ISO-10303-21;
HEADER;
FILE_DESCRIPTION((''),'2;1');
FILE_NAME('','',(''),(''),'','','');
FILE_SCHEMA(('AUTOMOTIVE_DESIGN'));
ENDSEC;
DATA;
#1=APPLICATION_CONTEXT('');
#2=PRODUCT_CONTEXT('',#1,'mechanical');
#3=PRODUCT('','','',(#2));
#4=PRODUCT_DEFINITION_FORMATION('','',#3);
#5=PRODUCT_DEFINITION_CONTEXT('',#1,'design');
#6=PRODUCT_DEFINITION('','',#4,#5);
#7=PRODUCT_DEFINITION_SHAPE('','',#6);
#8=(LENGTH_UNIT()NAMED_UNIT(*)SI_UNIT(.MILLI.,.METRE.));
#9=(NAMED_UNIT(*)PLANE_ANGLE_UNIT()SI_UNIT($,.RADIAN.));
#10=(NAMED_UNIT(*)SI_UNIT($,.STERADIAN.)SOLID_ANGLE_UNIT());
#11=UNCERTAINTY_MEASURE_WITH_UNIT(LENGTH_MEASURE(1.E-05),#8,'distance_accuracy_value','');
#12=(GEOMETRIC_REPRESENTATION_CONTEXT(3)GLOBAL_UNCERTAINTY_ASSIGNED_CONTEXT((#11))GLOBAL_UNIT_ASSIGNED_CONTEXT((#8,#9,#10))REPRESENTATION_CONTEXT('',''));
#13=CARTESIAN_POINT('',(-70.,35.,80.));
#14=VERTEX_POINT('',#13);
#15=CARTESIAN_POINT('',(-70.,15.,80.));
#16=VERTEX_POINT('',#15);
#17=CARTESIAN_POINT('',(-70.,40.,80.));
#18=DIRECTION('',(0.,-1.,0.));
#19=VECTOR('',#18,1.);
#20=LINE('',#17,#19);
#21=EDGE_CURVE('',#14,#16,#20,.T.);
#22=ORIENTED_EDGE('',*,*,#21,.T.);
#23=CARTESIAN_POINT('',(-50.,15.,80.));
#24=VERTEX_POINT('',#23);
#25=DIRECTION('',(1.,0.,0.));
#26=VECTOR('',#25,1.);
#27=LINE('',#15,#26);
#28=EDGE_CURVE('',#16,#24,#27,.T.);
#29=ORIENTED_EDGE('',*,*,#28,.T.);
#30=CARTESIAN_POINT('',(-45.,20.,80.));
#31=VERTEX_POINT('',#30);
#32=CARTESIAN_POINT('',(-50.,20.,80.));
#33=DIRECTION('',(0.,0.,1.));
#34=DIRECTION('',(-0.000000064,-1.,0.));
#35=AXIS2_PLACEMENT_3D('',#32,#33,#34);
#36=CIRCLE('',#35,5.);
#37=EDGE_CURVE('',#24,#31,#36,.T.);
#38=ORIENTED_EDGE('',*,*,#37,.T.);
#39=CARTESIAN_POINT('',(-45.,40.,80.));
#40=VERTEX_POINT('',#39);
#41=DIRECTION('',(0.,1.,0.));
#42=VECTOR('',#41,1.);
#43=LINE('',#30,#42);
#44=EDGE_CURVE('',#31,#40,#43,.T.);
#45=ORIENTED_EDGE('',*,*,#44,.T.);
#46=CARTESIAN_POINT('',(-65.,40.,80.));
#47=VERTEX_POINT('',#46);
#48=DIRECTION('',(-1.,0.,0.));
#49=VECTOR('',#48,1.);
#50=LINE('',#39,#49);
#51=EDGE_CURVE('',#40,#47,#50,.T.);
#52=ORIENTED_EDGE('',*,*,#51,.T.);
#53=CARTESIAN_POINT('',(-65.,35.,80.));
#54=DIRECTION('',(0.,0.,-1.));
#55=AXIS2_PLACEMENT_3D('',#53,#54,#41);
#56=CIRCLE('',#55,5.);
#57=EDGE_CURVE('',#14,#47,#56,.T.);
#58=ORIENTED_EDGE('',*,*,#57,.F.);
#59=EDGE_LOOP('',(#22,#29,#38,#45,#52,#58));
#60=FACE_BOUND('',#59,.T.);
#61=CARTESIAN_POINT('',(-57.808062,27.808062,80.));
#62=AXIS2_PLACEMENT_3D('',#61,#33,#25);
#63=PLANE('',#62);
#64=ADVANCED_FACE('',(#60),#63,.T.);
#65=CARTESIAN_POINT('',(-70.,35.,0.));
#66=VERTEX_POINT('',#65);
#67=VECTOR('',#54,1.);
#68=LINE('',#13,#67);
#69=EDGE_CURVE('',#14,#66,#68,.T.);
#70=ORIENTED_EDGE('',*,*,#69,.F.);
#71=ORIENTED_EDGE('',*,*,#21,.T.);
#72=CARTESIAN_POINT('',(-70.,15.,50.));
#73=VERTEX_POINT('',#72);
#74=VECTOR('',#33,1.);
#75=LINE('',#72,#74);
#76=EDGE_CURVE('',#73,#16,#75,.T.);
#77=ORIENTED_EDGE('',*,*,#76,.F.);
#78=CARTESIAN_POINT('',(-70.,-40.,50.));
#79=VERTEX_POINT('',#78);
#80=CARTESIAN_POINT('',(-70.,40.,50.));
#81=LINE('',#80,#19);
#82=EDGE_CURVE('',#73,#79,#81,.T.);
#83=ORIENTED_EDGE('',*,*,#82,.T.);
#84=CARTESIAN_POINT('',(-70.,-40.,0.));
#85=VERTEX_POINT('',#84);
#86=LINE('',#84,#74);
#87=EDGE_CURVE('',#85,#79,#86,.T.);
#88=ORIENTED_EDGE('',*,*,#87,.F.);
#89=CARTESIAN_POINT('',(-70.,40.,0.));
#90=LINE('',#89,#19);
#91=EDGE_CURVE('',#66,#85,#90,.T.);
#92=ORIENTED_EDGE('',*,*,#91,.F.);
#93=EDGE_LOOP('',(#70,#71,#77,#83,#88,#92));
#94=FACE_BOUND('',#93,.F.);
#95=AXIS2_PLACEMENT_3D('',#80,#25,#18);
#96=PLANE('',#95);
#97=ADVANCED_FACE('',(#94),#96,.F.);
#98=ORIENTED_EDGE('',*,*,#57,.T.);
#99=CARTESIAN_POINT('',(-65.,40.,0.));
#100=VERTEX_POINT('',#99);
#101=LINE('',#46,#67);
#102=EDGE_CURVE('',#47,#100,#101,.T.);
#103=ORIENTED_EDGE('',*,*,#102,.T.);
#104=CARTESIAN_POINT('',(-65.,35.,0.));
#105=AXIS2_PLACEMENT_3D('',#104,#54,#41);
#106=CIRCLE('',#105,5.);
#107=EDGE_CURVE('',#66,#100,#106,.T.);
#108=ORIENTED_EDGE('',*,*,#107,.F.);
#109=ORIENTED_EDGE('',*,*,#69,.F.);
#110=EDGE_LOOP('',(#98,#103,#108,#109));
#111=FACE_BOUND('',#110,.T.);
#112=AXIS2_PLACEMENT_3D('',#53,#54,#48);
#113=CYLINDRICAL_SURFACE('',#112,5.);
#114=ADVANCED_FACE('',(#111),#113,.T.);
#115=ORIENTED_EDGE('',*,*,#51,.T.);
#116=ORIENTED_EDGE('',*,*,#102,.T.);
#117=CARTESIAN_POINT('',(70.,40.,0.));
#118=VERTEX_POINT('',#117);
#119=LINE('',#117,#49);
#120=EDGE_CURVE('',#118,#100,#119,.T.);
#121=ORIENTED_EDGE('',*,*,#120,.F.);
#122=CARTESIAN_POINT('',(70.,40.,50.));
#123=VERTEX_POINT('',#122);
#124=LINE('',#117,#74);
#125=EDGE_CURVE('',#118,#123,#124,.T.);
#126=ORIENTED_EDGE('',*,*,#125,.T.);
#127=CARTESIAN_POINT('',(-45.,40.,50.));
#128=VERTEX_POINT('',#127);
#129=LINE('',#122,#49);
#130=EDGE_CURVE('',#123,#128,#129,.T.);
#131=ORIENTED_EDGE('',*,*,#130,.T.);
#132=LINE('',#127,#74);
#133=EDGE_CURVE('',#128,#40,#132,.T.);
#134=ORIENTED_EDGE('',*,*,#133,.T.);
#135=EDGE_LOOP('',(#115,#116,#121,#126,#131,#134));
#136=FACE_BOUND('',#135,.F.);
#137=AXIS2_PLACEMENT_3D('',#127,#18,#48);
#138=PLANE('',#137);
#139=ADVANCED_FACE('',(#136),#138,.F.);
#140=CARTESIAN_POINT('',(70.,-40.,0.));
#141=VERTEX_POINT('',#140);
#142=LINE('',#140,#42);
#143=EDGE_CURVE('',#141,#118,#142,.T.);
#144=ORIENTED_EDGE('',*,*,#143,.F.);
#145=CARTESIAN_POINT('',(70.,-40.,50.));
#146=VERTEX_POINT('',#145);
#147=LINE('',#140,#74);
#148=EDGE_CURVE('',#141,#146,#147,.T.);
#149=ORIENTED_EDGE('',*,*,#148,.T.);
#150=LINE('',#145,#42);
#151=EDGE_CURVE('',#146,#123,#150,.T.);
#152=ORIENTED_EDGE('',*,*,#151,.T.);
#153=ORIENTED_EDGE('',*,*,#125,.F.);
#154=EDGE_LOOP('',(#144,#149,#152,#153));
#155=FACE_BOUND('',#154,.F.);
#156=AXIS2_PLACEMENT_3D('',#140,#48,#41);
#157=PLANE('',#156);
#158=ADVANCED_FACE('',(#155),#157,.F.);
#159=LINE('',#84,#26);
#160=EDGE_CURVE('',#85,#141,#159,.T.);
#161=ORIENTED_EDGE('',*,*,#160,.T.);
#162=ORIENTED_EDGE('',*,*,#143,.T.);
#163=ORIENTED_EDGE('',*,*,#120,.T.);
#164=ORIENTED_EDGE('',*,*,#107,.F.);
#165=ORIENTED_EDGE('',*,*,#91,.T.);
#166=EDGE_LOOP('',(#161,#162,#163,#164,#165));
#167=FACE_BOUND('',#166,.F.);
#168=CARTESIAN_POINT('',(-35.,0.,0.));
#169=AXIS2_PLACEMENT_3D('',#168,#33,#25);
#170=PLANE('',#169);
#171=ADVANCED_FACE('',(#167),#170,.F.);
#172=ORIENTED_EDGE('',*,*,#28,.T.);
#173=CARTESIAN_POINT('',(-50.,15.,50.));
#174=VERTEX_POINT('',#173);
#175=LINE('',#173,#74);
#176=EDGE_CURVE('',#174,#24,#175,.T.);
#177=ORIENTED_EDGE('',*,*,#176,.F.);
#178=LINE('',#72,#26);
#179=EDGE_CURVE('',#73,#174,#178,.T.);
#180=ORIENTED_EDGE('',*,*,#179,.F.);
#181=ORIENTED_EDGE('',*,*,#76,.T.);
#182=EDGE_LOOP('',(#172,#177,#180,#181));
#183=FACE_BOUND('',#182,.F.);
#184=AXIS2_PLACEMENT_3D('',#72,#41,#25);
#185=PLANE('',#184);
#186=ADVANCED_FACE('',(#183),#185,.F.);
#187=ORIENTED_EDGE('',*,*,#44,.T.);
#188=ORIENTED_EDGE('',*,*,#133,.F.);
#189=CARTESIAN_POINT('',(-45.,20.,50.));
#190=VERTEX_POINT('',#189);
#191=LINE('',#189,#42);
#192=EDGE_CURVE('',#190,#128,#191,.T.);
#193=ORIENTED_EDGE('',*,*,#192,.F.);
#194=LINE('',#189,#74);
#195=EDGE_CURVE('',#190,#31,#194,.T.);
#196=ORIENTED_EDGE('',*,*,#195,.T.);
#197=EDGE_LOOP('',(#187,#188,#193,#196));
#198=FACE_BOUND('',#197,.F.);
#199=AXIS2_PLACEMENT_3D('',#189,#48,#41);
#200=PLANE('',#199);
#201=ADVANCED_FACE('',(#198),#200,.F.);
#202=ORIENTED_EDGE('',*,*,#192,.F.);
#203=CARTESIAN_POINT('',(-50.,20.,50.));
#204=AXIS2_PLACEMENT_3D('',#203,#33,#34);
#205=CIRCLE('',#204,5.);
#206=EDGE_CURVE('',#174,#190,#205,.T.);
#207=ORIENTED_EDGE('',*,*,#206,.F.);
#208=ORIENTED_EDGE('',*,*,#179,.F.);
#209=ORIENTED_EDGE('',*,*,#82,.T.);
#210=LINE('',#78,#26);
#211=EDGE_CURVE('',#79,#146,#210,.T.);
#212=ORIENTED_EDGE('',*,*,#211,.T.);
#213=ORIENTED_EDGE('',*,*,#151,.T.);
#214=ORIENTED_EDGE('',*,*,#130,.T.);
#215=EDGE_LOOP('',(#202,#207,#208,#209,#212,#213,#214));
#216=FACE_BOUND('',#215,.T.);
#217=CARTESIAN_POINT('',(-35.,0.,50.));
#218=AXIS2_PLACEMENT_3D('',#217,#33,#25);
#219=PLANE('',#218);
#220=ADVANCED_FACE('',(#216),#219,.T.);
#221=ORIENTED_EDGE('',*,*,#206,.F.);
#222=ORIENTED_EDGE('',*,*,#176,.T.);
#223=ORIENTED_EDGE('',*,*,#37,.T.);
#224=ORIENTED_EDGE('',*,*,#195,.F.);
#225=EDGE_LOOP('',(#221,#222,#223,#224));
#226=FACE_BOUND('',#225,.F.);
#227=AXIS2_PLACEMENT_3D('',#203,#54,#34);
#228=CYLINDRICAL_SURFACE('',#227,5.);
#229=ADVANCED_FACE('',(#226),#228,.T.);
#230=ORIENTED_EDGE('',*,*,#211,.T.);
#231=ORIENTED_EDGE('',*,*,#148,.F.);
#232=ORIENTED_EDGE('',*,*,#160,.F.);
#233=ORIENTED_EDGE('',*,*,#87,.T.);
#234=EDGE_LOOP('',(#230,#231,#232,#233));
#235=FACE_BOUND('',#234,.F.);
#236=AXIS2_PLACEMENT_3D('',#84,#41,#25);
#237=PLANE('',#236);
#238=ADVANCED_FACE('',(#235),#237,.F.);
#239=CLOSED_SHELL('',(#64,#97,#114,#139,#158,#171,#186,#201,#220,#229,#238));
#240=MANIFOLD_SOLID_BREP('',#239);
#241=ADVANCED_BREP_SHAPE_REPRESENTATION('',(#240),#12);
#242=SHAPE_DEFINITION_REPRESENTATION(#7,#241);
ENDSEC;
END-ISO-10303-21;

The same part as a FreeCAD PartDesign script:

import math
import FreeCAD as App
import Part
import Sketcher


def edges_at(feature, points):
    """Names of the edges that pass closest to the given points."""
    edges = feature.Shape.Edges
    near = lambda p: min(range(len(edges)), key=lambda i: edges[i].distToShape(Part.Vertex(*p))[0])
    return sorted({f"Edge{near(p) + 1}" for p in points})


def add_polygon(sketch, points):
    """Adds a closed chain of lines whose ends are joined by coincident constraints."""
    first, n = sketch.GeometryCount, len(points)
    for a, b in zip(points, points[1:] + points[:1]):
        sketch.addGeometry(Part.LineSegment(App.Vector(*a, 0), App.Vector(*b, 0)), False)
    for i in range(n):
        sketch.addConstraint(Sketcher.Constraint("Coincident", first + i, 2, first + (i + 1) % n, 1))

doc = App.newDocument("Part")
body = doc.addObject("PartDesign::Body", "Body")

# Sketch on XY plane
sketch1 = doc.addObject("Sketcher::SketchObject", "Sketch")
body.addObject(sketch1)
sketch1.AttachmentSupport = (doc.XY_Plane, [""])
sketch1.MapMode = "FlatFace"
add_polygon(sketch1, [(-70, 40), (-70, -40), (70, -40), (70, 40)])  # lines 0-3
sketch1.addConstraint([
    Sketcher.Constraint("Vertical", 0),
    Sketcher.Constraint("Horizontal", 1),
    Sketcher.Constraint("Vertical", 2),
    Sketcher.Constraint("Horizontal", 3),
    Sketcher.Constraint("Symmetric", 0, 2, 2, 2, -1, 1),
    Sketcher.Constraint("DistanceX", 1, 1, 1, 2, 140.0),
    Sketcher.Constraint("DistanceY", 0, 2, 0, 1, 80.0),
])
pad1 = doc.addObject("PartDesign::Pad", "Pad")
body.addObject(pad1)
pad1.Profile = sketch1
pad1.Length = 50

# Sketch on XY plane
sketch2 = doc.addObject("Sketcher::SketchObject", "Sketch001")
body.addObject(sketch2)
sketch2.AttachmentSupport = (doc.XY_Plane, [""])
sketch2.MapMode = "FlatFace"
sketch2.AttachmentOffset = App.Placement(App.Vector(0, 0, 50), App.Rotation())
sketch2.addGeometry([
    Part.LineSegment(App.Vector(-70, 40, 0), App.Vector(-70, 15, 0)),  # 0
    Part.LineSegment(App.Vector(-70, 15, 0), App.Vector(-50, 15, 0)),  # 1
    Part.ArcOfCircle(Part.Circle(App.Vector(-50, 20, 0), App.Vector(0, 0, 1), 5), math.radians(-90), math.radians(0)),  # 2
    Part.LineSegment(App.Vector(-45, 20, 0), App.Vector(-45, 40, 0)),  # 3
    Part.LineSegment(App.Vector(-45, 40, 0), App.Vector(-70, 40, 0)),  # 4
], False)
sketch2.addConstraint([
    Sketcher.Constraint("Coincident", 0, 2, 1, 1),
    Sketcher.Constraint("Tangent", 1, 2, 2, 1),
    Sketcher.Constraint("Tangent", 2, 2, 3, 1),
    Sketcher.Constraint("Coincident", 3, 2, 4, 1),
    Sketcher.Constraint("Coincident", 4, 2, 0, 1),
    Sketcher.Constraint("Vertical", 0),
    Sketcher.Constraint("Horizontal", 1),
    Sketcher.Constraint("Vertical", 3),
    Sketcher.Constraint("Horizontal", 4),
    Sketcher.Constraint("Equal", 4, 0),
    Sketcher.Constraint("Radius", 2, 5.0),
    Sketcher.Constraint("DistanceX", 1, 1, 1, 2, 20.0),
    Sketcher.Constraint("DistanceX", 2, 3, -1, 1, 50.0),
    Sketcher.Constraint("DistanceY", -1, 1, 2, 3, 20.0),
])
pad2 = doc.addObject("PartDesign::Pad", "Pad001")
body.addObject(pad2)
pad2.Profile = sketch2
pad2.Length = 30
doc.recompute()

fillet = doc.addObject("PartDesign::Fillet", "Fillet")
body.addObject(fillet)
fillet.Base = (pad2, edges_at(pad2, [(-70, 40, 40)]))
fillet.Radius = 5

doc.recompute()
